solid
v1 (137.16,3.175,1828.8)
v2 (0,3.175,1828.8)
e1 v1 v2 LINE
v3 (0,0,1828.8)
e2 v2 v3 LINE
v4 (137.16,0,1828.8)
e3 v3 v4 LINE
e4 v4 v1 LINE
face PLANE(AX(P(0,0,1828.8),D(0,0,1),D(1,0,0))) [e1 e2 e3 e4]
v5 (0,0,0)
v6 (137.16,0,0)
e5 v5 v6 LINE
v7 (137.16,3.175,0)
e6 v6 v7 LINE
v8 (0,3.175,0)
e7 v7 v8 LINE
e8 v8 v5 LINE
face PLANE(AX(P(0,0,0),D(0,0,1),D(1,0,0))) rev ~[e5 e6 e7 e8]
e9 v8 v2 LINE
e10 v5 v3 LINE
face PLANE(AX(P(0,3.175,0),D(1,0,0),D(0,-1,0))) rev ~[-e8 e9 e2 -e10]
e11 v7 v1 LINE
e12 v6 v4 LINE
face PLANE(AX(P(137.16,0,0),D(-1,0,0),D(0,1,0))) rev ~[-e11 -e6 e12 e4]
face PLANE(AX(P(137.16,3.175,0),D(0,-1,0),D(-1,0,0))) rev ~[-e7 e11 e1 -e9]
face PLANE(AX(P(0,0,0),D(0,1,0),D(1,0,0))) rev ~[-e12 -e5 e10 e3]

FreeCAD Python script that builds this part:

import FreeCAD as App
import Part
import Sketcher
Q = App.Units.Quantity

doc = App.newDocument("Part")
body = doc.addObject("PartDesign::Body", "Body")

# Sketch on XY plane
sketch1 = body.newObject("Sketcher::SketchObject", "Sketch")
sketch1.AttachmentSupport = (doc.getObject("XY_Plane"), [""])
sketch1.MapMode = "FlatFace"
sketch1.addGeometry(Part.LineSegment(App.Vector(0, 3.2, 0), App.Vector(0, 0, 0)), False)
sketch1.addGeometry(Part.LineSegment(App.Vector(0, 0, 0), App.Vector(137.2, 0, 0)), False)
sketch1.addGeometry(Part.LineSegment(App.Vector(137.2, 0, 0), App.Vector(137.2, 3.2, 0)), False)
sketch1.addGeometry(Part.LineSegment(App.Vector(137.2, 3.2, 0), App.Vector(0, 3.2, 0)), False)
sketch1.addConstraint(Sketcher.Constraint("Coincident", 0, 2, 1, 1))
sketch1.addConstraint(Sketcher.Constraint("Coincident", 1, 2, 2, 1))
sketch1.addConstraint(Sketcher.Constraint("Coincident", 2, 2, 3, 1))
sketch1.addConstraint(Sketcher.Constraint("Coincident", 3, 2, 0, 1))
sketch1.addConstraint(Sketcher.Constraint("Vertical", 0))
sketch1.addConstraint(Sketcher.Constraint("Horizontal", 1))
sketch1.addConstraint(Sketcher.Constraint("Vertical", 2))
sketch1.addConstraint(Sketcher.Constraint("Horizontal", 3))
sketch1.addConstraint(Sketcher.Constraint("Coincident", 0, 2, -1, 1))
sketch1.addConstraint(Sketcher.Constraint("DistanceX", 1, 1, 1, 2, Q("5.4 in")))
sketch1.addConstraint(Sketcher.Constraint("DistanceY", 0, 2, 0, 1, Q("0.125 in")))
pad1 = body.newObject("PartDesign::Pad", "Pad")
pad1.Profile = sketch1
pad1.Length = Q("72 in")

doc.recompute()
